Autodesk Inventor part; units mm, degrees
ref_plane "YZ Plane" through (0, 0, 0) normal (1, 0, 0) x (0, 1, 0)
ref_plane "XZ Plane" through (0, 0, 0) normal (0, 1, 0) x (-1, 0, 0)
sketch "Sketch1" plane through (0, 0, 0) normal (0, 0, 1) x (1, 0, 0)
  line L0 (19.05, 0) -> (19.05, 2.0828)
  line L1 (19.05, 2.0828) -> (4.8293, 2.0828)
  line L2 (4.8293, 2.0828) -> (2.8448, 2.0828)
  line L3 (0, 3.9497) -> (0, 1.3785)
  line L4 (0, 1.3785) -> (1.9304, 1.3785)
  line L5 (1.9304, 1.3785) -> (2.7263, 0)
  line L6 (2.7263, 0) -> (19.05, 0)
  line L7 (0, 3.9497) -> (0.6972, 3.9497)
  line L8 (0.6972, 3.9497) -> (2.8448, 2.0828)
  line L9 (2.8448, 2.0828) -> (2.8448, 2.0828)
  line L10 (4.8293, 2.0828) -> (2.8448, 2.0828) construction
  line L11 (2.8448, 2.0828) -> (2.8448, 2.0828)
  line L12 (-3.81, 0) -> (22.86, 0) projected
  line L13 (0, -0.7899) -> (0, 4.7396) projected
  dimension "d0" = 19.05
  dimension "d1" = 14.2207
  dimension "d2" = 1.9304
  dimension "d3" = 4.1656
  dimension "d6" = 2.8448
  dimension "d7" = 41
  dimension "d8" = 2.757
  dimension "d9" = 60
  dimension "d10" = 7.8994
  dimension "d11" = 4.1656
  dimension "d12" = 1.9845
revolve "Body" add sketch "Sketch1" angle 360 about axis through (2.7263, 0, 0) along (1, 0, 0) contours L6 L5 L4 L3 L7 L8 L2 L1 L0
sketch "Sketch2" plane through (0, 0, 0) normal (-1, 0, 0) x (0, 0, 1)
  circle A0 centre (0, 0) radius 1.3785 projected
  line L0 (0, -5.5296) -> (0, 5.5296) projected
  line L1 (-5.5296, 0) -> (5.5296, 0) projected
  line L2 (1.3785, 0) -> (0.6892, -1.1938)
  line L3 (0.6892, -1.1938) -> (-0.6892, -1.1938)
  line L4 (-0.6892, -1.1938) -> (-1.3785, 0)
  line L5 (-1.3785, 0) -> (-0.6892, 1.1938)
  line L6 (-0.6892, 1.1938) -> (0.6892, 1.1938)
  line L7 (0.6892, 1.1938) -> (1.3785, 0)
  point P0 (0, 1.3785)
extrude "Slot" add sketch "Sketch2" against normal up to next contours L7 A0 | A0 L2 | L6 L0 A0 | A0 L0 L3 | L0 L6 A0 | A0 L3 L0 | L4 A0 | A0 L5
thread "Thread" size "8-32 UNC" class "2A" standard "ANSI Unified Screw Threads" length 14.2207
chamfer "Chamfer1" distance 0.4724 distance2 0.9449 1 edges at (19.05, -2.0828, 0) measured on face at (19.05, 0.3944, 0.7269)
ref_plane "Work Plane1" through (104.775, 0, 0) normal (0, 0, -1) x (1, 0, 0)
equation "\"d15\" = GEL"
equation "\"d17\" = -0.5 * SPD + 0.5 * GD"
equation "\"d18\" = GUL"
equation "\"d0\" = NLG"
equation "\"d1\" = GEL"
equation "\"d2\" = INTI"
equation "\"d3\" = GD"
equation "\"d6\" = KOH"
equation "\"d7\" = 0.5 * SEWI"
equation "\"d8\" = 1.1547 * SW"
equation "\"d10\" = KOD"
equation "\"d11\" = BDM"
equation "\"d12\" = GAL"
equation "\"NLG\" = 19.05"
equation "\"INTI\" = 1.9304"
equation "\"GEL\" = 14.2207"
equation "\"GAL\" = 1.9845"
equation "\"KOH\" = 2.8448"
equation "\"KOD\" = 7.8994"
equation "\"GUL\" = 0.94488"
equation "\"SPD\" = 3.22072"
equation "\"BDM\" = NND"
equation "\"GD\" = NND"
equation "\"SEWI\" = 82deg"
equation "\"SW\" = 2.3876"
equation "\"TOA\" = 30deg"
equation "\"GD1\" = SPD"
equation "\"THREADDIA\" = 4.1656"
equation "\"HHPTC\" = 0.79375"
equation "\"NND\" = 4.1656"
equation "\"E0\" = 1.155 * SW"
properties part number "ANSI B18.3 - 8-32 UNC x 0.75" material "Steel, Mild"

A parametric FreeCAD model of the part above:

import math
import FreeCAD as App
import Part
import Sketcher

V = App.Vector
Q = App.Units.Quantity


def edges_at(feature, points):
    """Names of the edges that pass closest to the given points."""
    edges = feature.Shape.Edges
    near = lambda p: min(range(len(edges)), key=lambda i: edges[i].distToShape(Part.Vertex(*p))[0])
    return sorted({f"Edge{near(p) + 1}" for p in points})


def add_polygon(sketch, points):
    """Adds a closed chain of lines whose ends are joined by coincident constraints."""
    first, n = sketch.GeometryCount, len(points)
    for a, b in zip(points, points[1:] + points[:1]):
        sketch.addGeometry(Part.LineSegment(App.Vector(*a, 0), App.Vector(*b, 0)), False)
    for i in range(n):
        sketch.addConstraint(Sketcher.Constraint("Coincident", first + i, 2, first + (i + 1) % n, 1))

doc = App.newDocument("Part")
params = doc.addObject("Spreadsheet::Sheet", "Params")
for row, (alias, value) in enumerate([
    ("sketch1_width", "0.076 in"),
    ("sketch1_height", "0.082 in"),
    ("revolution_angle", "360 deg"),
    ("chamfer_size", "0.0185984 in"),
    ("chamfer_size2", "0.0372008 in"),
], start=1):
    params.set(f"A{row}", alias)
    params.set(f"B{row}", "=" + value)
    params.setAlias(f"B{row}", alias)

body = doc.addObject("PartDesign::Body", "Body")

# Sketch on XY plane
sketch1 = body.newObject("Sketcher::SketchObject", "Sketch")
sketch1.AttachmentSupport = (doc.getObject("XY_Plane"), [""])
sketch1.MapMode = "FlatFace"
add_polygon(sketch1, [(2.7, 0), (19.1, 0), (19.1, 2.1), (2.8, 2.1), (0.7, 3.9), (0, 3.9), (0, 1.4), (1.9, 1.4)])  # lines 0-7
sketch1.addConstraint(Sketcher.Constraint("Horizontal", 0))
sketch1.addConstraint(Sketcher.Constraint("Vertical", 1))
sketch1.addConstraint(Sketcher.Constraint("Horizontal", 2))
sketch1.addConstraint(Sketcher.Constraint("Horizontal", 4))
sketch1.addConstraint(Sketcher.Constraint("Vertical", 5))
sketch1.addConstraint(Sketcher.Constraint("Horizontal", 6))
sketch1.addConstraint(Sketcher.Constraint("PointOnObject", 0, 2, -1))
sketch1.addConstraint(Sketcher.Constraint("PointOnObject", 4, 2, -2))
sketch1.addConstraint(Sketcher.Constraint("DistanceX", 6, 1, 6, 2, Q("0.076 in")))
sketch1.addConstraint(Sketcher.Constraint("DistanceX", -1, 1, 0, 2, Q("0.75 in")))
sketch1.addConstraint(Sketcher.Constraint("DistanceX", -1, 1, 2, 2, Q("0.112 in")))
sketch1.addConstraint(Sketcher.Constraint("Angle", 3, Q("138.9997 deg")))
sketch1.addConstraint(Sketcher.Constraint("Angle", 7, Q("-59.9993 deg")))
sketch1.addConstraint(Sketcher.Constraint("DistanceY", 1, 1, 1, 2, Q("0.082 in")))
sketch1.addConstraint(Sketcher.Constraint("DistanceX", 0, 1, 0, 2, Q("16.3237 mm")))
sketch1.addConstraint(Sketcher.Constraint("DistanceX", 4, 2, 4, 1, Q("0.6972 mm")))
sketch1.setExpression("Constraints[16]", "Params.sketch1_width")
sketch1.setExpression("Constraints[21]", "Params.sketch1_height")
revolution = body.newObject("PartDesign::Revolution", "Revolution")
revolution.Profile = sketch1
revolution.ReferenceAxis = (sketch1, ["H_Axis"])
revolution.setExpression("Angle", "Params.revolution_angle")

# Sketch on YZ plane
sketch2 = body.newObject("Sketcher::SketchObject", "Sketch001")
sketch2.AttachmentSupport = (doc.getObject("YZ_Plane"), [""])
sketch2.MapMode = "FlatFace"
sketch2.addGeometry(Part.LineSegment(V(1.2, 0.7, 0), V(0, 1.4, 0)), False)
sketch2.addGeometry(Part.ArcOfCircle(Part.Circle(V(0, 0, 0), V(0, 0, 1), 1.4), math.radians(30), math.radians(90)), False)
sketch2.addGeometry(Part.ArcOfCircle(Part.Circle(V(0, 0, 0), V(0, 0, 1), 1.4), math.radians(90), math.radians(150)), False)
sketch2.addGeometry(Part.LineSegment(V(0, 1.4, 0), V(-1.2, 0.7, 0)), False)
sketch2.addGeometry(Part.ArcOfCircle(Part.Circle(V(0, 0, 0), V(0, 0, 1), 1.4), math.radians(-30), math.radians(30)), False)
sketch2.addGeometry(Part.LineSegment(V(1.2, 0.7, 0), V(1.2, -0.7, 0)), False)
sketch2.addGeometry(Part.LineSegment(V(-1.2, 0.7, 0), V(-1.2, -0.7, 0)), False)
sketch2.addGeometry(Part.ArcOfCircle(Part.Circle(V(0, 0, 0), V(0, 0, 1), 1.4), math.radians(150), math.radians(210)), False)
sketch2.addGeometry(Part.LineSegment(V(-1.2, -0.7, 0), V(0, -1.4, 0)), False)
sketch2.addGeometry(Part.ArcOfCircle(Part.Circle(V(0, 0, 0), V(0, 0, 1), 1.4), math.radians(-150), math.radians(-90)), False)
sketch2.addGeometry(Part.ArcOfCircle(Part.Circle(V(0, 0, 0), V(0, 0, 1), 1.4), math.radians(-90), math.radians(-30)), False)
sketch2.addGeometry(Part.LineSegment(V(0, -1.4, 0), V(1.2, -0.7, 0)), False)
sketch2.addConstraint(Sketcher.Constraint("Coincident", 0, 1, 1, 1))
sketch2.addConstraint(Sketcher.Constraint("Coincident", 1, 2, 0, 2))
sketch2.addConstraint(Sketcher.Constraint("Coincident", 2, 1, 3, 1))
sketch2.addConstraint(Sketcher.Constraint("Coincident", 3, 2, 2, 2))
sketch2.addConstraint(Sketcher.Constraint("Coincident", 4, 1, 5, 2))
sketch2.addConstraint(Sketcher.Constraint("Coincident", 5, 1, 4, 2))
sketch2.addConstraint(Sketcher.Constraint("Coincident", 6, 1, 7, 1))
sketch2.addConstraint(Sketcher.Constraint("Coincident", 7, 2, 6, 2))
sketch2.addConstraint(Sketcher.Constraint("Coincident", 8, 1, 9, 1))
sketch2.addConstraint(Sketcher.Constraint("Coincident", 9, 2, 8, 2))
sketch2.addConstraint(Sketcher.Constraint("Coincident", 10, 1, 11, 1))
sketch2.addConstraint(Sketcher.Constraint("Coincident", 11, 2, 10, 2))
sketch2.addConstraint(Sketcher.Constraint("Vertical", 5))
sketch2.addConstraint(Sketcher.Constraint("Vertical", 6))
sketch2.addConstraint(Sketcher.Constraint("Coincident", 1, 3, -1, 1))
sketch2.addConstraint(Sketcher.Constraint("Coincident", 2, 3, -1, 1))
sketch2.addConstraint(Sketcher.Constraint("Coincident", 4, 3, -1, 1))
sketch2.addConstraint(Sketcher.Constraint("Coincident", 7, 3, -1, 1))
sketch2.addConstraint(Sketcher.Constraint("Coincident", 9, 3, -1, 1))
sketch2.addConstraint(Sketcher.Constraint("Coincident", 10, 3, -1, 1))
sketch2.addConstraint(Sketcher.Constraint("Coincident", 2, 1, 1, 2))
sketch2.addConstraint(Sketcher.Constraint("Coincident", 5, 1, 0, 1))
sketch2.addConstraint(Sketcher.Constraint("Coincident", 6, 1, 3, 2))
sketch2.addConstraint(Sketcher.Constraint("Coincident", 8, 1, 7, 2))
sketch2.addConstraint(Sketcher.Constraint("Coincident", 10, 1, 9, 2))
sketch2.addConstraint(Sketcher.Constraint("PointOnObject", 1, 2, -2))
sketch2.addConstraint(Sketcher.Constraint("PointOnObject", 9, 2, -2))
sketch2.addConstraint(Sketcher.Constraint("Parallel", 0, 8))
sketch2.addConstraint(Sketcher.Constraint("Parallel", 3, 11))
sketch2.addConstraint(Sketcher.Constraint("Radius", 1, Q("1.3785 mm")))
sketch2.addConstraint(Sketcher.Constraint("DistanceX", -1, 1, 0, 1, Q("0.047 in")))
pad1 = body.newObject("PartDesign::Pad", "Pad")
pad1.Profile = sketch2
pad1.Type = "UpToFirst"
doc.recompute()

chamfer = body.newObject("PartDesign::Chamfer", "Chamfer")
chamfer.Base = (pad1, edges_at(pad1, [(19.05, -2.083, 0)]))
chamfer.ChamferType = "Two distances"
chamfer.setExpression("Size", "Params.chamfer_size")
chamfer.setExpression("Size2", "Params.chamfer_size2")

doc.recompute()
